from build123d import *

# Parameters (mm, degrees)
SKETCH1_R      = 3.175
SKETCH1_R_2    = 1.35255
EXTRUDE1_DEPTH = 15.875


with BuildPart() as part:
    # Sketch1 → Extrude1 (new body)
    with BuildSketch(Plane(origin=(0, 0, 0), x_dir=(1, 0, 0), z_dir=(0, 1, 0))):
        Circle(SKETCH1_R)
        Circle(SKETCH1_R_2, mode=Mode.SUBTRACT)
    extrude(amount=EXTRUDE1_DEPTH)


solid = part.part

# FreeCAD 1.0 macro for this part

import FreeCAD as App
import Part
import Sketcher

V = App.Vector
Q = App.Units.Quantity

doc = App.newDocument("Part")
body = doc.addObject("PartDesign::Body", "Body")

# Sketch on XZ plane
sketch1 = doc.addObject("Sketcher::SketchObject", "Sketch")
body.addObject(sketch1)
sketch1.AttachmentSupport = (doc.XZ_Plane, [""])
sketch1.MapMode = "FlatFace"
sketch1.addGeometry([
    Part.Circle(V(0, 0, 0), V(0, 0, 1), 3.175),
    Part.Circle(V(0, 0, 0), V(0, 0, 1), 1.35255),
], False)
sketch1.addConstraint([
    Sketcher.Constraint("Coincident", 0, 3, -1, 1),
    Sketcher.Constraint("Coincident", 1, 3, -1, 1),
    Sketcher.Constraint("Diameter", 0, Q("0.25 in")),
    Sketcher.Constraint("Diameter", 1, Q("0.1065 in")),
])
pad1 = doc.addObject("PartDesign::Pad", "Pad")
body.addObject(pad1)
pad1.Profile = sketch1
pad1.Length = Q("0.625 in")
pad1.Reversed = True

doc.recompute()
